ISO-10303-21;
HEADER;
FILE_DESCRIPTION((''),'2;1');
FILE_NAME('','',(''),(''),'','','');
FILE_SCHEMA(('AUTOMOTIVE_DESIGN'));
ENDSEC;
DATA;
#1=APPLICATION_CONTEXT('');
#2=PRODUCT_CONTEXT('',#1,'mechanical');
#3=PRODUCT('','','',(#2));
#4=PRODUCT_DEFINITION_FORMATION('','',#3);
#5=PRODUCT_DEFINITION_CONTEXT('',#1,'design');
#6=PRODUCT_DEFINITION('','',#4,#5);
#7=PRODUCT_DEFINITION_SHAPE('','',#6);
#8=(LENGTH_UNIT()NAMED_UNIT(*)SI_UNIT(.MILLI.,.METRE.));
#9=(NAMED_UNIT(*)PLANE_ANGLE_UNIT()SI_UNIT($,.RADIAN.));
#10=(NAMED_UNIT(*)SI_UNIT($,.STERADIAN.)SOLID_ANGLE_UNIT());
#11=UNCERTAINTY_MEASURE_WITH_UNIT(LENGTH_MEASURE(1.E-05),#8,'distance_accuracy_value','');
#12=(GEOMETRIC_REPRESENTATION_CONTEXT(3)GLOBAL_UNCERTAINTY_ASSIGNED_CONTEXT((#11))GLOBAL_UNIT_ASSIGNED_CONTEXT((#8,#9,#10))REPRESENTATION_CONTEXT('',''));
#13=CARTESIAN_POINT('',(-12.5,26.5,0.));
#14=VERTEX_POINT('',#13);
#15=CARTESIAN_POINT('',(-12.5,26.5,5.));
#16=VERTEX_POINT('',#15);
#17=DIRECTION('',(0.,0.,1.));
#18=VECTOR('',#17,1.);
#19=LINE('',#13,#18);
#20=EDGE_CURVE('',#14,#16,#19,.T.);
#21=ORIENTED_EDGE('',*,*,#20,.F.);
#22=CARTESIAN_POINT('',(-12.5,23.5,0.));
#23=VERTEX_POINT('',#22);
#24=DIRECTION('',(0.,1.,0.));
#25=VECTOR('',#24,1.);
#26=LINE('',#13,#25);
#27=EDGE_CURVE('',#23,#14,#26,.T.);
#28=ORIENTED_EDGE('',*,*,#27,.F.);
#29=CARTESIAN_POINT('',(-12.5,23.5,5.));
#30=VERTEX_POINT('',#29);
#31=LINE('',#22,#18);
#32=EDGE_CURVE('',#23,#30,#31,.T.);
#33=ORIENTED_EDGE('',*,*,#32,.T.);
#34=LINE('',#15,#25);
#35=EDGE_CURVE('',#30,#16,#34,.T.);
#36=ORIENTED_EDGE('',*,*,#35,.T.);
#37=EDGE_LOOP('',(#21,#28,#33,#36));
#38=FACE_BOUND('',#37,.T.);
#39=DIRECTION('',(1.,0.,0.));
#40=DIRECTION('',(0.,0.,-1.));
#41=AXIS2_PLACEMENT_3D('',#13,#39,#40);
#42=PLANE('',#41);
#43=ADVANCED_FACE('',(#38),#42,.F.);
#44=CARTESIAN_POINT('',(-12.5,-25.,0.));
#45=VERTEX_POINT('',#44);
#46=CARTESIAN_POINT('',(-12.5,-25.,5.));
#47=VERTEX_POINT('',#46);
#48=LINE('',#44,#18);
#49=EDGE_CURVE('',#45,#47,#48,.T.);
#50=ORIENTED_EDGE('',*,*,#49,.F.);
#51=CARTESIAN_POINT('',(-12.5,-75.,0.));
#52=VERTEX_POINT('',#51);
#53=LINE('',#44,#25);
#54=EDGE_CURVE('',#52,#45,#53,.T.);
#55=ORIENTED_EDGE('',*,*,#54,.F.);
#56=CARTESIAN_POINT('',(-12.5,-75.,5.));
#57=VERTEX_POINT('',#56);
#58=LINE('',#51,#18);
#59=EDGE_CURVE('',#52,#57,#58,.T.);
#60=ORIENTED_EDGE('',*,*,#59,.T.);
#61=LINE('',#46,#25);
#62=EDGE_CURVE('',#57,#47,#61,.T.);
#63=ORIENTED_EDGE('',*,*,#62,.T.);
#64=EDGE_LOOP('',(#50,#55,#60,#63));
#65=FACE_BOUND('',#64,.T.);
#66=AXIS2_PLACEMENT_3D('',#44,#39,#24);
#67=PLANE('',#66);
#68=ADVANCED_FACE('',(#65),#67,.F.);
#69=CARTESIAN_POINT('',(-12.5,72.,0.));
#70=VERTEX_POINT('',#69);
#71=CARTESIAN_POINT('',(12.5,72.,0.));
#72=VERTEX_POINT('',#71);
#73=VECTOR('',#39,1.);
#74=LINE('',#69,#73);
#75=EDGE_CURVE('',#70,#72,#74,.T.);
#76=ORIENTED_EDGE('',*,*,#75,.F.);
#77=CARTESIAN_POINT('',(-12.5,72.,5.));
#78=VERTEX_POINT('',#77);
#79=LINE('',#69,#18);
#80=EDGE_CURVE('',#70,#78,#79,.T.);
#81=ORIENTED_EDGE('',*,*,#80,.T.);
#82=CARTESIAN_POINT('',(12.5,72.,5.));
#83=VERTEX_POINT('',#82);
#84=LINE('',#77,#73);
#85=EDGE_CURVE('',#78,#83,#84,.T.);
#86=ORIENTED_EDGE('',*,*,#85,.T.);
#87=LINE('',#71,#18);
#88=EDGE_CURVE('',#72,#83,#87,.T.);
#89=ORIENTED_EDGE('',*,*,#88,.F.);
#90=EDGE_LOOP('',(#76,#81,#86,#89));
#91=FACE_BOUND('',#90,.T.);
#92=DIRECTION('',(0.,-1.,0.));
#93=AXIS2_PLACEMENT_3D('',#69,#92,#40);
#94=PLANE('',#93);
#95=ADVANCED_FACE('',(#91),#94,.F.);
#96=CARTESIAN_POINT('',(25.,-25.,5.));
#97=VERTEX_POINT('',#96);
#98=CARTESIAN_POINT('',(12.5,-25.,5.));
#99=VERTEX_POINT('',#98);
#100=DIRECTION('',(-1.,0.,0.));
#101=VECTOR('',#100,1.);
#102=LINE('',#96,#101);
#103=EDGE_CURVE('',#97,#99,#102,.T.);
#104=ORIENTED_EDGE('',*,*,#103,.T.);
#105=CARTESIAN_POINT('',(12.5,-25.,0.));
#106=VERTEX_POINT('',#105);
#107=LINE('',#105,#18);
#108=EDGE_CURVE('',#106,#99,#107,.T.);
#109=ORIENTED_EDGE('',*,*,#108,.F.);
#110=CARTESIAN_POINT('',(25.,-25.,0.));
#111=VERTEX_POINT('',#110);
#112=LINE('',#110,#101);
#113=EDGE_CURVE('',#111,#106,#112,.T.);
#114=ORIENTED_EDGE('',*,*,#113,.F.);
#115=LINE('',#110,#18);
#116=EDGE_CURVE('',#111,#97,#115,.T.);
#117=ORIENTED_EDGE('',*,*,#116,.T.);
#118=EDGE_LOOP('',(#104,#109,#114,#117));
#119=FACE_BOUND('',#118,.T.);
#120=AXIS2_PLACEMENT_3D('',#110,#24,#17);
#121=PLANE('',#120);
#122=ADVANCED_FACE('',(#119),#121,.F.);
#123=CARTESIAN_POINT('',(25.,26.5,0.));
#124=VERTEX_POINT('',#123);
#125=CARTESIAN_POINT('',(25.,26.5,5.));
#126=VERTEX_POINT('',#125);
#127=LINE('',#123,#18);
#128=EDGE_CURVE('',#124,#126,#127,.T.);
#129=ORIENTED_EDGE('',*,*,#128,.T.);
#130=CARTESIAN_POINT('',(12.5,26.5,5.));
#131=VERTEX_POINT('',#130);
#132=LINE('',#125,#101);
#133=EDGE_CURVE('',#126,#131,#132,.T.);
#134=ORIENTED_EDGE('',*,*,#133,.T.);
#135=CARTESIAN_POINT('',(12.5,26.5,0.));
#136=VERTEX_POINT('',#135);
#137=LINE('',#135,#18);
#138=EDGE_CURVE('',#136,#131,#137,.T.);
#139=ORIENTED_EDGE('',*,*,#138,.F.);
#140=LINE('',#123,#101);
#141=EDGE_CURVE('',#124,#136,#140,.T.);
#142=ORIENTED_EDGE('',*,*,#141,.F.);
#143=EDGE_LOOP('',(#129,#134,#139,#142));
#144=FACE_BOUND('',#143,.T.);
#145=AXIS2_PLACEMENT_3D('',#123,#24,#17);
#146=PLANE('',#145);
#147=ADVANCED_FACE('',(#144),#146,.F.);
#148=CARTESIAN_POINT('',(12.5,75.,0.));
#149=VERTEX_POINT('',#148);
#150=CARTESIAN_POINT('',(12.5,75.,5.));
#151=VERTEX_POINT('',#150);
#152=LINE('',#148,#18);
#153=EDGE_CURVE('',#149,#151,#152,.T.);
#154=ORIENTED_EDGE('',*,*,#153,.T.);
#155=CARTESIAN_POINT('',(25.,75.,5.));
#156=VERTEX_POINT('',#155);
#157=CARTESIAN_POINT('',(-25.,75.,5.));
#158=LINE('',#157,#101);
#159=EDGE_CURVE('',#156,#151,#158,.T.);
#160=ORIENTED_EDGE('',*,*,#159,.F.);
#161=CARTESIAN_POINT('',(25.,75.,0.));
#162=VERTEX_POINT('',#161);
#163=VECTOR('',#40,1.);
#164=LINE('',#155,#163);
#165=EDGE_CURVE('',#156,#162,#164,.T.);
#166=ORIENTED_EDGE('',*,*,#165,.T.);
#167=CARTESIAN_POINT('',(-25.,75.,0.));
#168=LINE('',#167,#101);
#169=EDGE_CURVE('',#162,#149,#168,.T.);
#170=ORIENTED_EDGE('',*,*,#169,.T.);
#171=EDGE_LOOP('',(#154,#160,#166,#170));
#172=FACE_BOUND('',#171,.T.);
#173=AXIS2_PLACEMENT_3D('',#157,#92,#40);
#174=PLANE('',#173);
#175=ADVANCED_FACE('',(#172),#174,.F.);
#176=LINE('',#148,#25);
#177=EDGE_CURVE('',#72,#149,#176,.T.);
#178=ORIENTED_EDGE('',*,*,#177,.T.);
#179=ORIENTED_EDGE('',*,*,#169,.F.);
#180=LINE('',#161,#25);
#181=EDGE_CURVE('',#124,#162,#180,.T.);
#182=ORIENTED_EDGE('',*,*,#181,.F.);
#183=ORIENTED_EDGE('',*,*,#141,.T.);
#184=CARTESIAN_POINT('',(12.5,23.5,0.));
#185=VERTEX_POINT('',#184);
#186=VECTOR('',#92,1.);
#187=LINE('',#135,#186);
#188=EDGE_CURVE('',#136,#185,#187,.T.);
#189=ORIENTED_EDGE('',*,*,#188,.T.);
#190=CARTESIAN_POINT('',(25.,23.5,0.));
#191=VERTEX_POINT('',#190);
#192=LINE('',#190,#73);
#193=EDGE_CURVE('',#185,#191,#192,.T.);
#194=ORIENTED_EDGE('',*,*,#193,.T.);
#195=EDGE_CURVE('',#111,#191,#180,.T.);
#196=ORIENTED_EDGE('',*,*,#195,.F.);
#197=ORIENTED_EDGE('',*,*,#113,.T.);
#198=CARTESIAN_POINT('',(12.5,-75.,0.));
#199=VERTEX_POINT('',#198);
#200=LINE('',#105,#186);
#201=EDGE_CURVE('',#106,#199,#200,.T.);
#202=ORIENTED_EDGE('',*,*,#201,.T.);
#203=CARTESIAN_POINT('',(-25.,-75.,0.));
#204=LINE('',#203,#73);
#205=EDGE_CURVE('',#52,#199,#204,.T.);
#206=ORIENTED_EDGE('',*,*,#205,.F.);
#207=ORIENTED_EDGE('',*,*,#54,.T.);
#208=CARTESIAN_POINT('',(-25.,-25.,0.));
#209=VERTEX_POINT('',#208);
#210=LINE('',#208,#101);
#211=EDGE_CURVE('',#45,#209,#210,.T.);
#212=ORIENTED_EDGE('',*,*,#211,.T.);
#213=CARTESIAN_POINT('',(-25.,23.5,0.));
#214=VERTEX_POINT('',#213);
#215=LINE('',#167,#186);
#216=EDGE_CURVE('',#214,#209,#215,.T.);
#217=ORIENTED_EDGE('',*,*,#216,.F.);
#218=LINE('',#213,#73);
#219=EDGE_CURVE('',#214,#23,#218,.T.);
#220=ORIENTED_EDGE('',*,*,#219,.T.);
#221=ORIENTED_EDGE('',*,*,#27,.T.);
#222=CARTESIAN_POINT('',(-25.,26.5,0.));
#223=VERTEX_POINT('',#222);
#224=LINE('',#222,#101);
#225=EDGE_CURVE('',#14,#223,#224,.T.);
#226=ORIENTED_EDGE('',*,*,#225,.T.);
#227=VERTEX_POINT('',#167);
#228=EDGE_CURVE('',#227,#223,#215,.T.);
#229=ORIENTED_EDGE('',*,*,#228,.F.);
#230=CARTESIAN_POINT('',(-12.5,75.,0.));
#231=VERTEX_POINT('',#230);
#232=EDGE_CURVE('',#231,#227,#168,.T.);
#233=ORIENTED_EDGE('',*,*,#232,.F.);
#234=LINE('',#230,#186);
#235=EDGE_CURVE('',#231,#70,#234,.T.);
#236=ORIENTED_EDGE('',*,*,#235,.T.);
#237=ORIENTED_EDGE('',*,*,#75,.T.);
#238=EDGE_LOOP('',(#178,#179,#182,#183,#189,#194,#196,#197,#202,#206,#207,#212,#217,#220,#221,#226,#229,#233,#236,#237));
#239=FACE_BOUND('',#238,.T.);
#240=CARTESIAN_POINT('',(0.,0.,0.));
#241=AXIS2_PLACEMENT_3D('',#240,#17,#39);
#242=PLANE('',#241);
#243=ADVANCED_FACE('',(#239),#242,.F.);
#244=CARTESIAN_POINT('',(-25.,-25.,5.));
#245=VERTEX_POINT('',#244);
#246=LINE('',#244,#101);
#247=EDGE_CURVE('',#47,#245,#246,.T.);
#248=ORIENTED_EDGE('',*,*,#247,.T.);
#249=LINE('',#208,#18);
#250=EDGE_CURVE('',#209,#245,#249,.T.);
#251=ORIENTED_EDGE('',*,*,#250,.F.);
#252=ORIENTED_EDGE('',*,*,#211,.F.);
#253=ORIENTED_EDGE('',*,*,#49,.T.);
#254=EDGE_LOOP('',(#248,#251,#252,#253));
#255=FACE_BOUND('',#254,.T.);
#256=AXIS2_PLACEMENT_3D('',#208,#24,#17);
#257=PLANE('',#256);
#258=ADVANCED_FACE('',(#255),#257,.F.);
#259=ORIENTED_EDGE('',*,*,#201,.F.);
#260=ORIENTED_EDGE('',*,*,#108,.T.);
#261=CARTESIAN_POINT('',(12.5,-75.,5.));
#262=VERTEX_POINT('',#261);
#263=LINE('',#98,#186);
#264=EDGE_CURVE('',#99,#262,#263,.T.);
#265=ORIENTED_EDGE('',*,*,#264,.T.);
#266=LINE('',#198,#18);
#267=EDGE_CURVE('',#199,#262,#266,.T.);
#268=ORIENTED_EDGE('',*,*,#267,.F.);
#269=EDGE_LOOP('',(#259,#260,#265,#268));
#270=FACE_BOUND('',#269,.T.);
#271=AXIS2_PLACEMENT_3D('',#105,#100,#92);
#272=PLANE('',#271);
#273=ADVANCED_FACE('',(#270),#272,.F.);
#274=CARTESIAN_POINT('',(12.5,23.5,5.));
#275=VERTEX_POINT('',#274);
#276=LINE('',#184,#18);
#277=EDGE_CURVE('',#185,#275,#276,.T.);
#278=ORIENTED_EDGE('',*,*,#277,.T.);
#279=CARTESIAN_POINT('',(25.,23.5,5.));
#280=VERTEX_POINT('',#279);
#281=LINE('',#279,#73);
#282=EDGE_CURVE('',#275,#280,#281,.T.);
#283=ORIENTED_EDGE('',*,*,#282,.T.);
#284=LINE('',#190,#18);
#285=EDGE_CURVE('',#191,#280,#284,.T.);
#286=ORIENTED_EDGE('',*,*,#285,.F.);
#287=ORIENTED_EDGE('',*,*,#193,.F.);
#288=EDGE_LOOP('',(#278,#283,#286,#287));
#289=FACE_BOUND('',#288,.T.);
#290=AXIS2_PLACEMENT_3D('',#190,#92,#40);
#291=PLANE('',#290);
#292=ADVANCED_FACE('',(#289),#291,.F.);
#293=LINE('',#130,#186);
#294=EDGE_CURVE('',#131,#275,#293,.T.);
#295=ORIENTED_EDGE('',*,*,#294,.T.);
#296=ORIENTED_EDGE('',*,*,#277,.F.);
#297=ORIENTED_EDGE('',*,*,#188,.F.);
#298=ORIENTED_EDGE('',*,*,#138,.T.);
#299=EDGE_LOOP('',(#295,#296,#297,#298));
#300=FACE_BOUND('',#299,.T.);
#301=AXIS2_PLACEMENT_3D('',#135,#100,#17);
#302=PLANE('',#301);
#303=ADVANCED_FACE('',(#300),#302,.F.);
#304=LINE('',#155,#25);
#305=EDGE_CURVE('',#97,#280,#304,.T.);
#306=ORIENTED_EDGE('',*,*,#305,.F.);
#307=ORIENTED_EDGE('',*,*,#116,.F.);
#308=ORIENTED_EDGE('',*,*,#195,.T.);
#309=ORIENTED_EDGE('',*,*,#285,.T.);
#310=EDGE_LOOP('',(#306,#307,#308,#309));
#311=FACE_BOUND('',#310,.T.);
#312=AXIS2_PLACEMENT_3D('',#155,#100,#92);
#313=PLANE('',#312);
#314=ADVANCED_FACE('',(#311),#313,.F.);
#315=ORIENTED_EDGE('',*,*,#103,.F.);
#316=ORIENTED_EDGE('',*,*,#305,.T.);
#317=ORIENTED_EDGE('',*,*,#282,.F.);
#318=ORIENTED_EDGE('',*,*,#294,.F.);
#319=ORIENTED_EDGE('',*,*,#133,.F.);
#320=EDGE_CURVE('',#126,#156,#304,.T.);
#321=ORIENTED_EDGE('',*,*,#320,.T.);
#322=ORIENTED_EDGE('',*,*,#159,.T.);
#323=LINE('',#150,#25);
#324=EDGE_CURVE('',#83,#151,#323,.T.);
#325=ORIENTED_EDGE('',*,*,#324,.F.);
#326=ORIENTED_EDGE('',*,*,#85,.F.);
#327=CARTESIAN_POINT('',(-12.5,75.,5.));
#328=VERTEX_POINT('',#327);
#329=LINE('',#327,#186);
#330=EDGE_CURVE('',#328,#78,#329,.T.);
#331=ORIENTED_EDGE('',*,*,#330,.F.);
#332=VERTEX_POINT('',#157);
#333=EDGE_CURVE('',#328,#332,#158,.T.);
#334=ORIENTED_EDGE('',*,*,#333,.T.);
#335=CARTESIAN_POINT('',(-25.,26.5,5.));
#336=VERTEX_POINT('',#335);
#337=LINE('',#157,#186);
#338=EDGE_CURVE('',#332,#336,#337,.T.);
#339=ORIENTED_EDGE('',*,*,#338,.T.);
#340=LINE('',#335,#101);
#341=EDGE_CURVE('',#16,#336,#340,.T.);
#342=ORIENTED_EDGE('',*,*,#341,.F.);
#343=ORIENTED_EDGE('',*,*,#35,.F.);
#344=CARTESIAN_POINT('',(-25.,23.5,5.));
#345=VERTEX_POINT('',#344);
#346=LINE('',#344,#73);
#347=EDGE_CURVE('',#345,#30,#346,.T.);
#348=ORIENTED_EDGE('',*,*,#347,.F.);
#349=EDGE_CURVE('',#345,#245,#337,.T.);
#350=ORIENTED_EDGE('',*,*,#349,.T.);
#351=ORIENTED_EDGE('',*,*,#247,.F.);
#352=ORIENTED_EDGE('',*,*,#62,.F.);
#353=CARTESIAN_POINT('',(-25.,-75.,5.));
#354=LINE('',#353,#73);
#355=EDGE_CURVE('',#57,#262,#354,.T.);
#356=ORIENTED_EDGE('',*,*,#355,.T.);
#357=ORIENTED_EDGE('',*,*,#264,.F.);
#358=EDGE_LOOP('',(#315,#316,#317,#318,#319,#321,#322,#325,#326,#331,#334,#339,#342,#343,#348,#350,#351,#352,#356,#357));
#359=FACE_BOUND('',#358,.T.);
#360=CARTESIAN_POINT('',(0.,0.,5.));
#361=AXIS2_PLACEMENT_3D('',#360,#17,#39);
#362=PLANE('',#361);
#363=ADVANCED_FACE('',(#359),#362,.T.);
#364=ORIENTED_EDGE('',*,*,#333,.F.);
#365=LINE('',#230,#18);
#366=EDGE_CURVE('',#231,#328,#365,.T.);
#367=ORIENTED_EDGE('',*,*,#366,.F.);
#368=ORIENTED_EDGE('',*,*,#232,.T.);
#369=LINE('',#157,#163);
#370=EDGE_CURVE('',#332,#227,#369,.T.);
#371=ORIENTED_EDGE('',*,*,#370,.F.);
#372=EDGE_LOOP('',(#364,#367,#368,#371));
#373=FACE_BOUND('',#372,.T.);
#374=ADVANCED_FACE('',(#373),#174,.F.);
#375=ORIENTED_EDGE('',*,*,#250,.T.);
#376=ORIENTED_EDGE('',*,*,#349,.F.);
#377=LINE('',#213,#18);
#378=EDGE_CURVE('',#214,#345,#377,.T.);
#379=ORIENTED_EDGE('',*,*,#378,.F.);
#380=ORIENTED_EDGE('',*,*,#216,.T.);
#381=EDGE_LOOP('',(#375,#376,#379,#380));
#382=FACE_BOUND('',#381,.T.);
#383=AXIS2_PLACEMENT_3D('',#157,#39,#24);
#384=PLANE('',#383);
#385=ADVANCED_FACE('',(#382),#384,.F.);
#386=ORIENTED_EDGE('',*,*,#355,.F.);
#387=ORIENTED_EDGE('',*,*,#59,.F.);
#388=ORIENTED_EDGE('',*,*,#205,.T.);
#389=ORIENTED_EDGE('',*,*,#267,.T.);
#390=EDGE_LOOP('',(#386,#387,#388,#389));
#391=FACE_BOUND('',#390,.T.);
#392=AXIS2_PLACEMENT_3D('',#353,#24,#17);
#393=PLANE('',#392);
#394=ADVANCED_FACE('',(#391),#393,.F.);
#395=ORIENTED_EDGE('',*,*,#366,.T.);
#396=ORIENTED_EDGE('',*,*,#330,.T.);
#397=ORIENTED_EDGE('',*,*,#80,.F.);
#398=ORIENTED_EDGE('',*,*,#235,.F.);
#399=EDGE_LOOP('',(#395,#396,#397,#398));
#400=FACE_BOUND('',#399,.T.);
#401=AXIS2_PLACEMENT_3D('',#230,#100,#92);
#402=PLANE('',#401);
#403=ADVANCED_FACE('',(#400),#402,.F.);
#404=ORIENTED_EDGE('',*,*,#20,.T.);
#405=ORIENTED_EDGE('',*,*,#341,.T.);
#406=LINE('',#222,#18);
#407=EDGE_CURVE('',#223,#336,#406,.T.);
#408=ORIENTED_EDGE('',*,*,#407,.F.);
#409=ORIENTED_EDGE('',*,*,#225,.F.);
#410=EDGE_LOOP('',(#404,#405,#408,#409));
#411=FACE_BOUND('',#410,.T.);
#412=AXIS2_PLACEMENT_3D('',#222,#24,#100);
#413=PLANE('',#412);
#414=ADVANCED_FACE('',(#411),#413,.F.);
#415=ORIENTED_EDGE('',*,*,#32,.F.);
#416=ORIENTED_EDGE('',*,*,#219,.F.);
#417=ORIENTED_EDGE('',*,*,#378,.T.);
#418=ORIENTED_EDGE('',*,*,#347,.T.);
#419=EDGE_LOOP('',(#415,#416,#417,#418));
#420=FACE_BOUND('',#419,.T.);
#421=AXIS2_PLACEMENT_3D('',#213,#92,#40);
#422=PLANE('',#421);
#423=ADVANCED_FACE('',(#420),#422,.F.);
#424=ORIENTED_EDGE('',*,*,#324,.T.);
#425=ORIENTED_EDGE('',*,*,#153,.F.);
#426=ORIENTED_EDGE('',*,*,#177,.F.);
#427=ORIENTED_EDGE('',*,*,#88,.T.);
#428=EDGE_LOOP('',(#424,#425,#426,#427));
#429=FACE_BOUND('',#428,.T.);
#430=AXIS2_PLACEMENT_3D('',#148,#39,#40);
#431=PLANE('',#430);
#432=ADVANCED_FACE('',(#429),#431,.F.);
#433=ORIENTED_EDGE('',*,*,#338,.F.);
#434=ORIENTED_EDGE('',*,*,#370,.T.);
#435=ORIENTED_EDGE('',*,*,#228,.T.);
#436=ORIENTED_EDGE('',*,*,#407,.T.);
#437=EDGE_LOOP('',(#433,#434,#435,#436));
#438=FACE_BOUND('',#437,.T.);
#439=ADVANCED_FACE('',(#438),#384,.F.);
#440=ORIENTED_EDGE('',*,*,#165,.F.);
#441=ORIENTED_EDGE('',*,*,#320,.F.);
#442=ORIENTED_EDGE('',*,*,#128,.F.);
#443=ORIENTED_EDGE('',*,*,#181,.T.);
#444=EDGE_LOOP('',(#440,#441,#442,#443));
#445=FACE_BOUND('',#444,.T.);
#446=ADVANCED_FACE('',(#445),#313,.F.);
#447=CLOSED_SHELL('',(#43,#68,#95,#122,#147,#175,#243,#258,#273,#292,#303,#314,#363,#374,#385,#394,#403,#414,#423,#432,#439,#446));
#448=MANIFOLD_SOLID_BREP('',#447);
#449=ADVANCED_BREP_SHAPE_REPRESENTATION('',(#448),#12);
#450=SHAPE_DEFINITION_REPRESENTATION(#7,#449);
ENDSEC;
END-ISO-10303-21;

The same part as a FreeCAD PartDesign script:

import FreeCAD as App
import Part
import Sketcher


def add_polygon(sketch, points):
    """Adds a closed chain of lines whose ends are joined by coincident constraints."""
    first, n = sketch.GeometryCount, len(points)
    for a, b in zip(points, points[1:] + points[:1]):
        sketch.addGeometry(Part.LineSegment(App.Vector(*a, 0), App.Vector(*b, 0)), False)
    for i in range(n):
        sketch.addConstraint(Sketcher.Constraint("Coincident", first + i, 2, first + (i + 1) % n, 1))

doc = App.newDocument("Part")
params = doc.addObject("Spreadsheet::Sheet", "Params")
for row, (alias, value) in enumerate([
    ("sketch1_width", "50 mm"),
    ("sketch1_height", "150 mm"),
    ("pad1_length", "5 mm"),
    ("sketch2_width", "25 mm"),
    ("sketch2_height", "3 mm"),
    ("sketch2_height2", "50 mm"),
    ("sketch2_width2", "12.5 mm"),
    ("pocket1_length", "5 mm"),
], start=1):
    params.set(f"A{row}", alias)
    params.set(f"B{row}", "=" + value)
    params.setAlias(f"B{row}", alias)

body = doc.addObject("PartDesign::Body", "Body")

sketch1 = doc.addObject("Sketcher::SketchObject", "Sketch")
body.addObject(sketch1)
sketch1.AttachmentSupport = (doc.XY_Plane, [""])
sketch1.MapMode = "FlatFace"
add_polygon(sketch1, [(-25, 75), (-25, -75), (25, -75), (25, 75)])
sketch1.addConstraint([
    Sketcher.Constraint("Vertical", 0),
    Sketcher.Constraint("Horizontal", 1),
    Sketcher.Constraint("Vertical", 2),
    Sketcher.Constraint("Horizontal", 3),
    Sketcher.Constraint("Symmetric", 0, 2, 2, 2, -1, 1),
    Sketcher.Constraint("DistanceX", 1, 1, 1, 2, 50.0),
    Sketcher.Constraint("DistanceY", 0, 2, 0, 1, 150.0),
])
sketch1.setExpression("Constraints[9]", "Params.sketch1_width")
sketch1.setExpression("Constraints[10]", "Params.sketch1_height")
pad1 = doc.addObject("PartDesign::Pad", "Pad")
body.addObject(pad1)
pad1.Profile = sketch1
pad1.setExpression("Length", "Params.pad1_length")

sketch2 = doc.addObject("Sketcher::SketchObject", "Sketch001")
body.addObject(sketch2)
sketch2.AttachmentSupport = (doc.XY_Plane, [""])
sketch2.MapMode = "FlatFace"
sketch2.AttachmentOffset = App.Placement(App.Vector(0, 0, 5), App.Rotation())
add_polygon(sketch2, [(-12.5, 75), (-12.5, 72), (12.5, 72), (12.5, 75)])
add_polygon(sketch2, [(-25, 26.5), (-25, 23.5), (-12.5, 23.5), (-12.5, 26.5)])
add_polygon(sketch2, [(12.5, 26.5), (12.5, 23.5), (25, 23.5), (25, 26.5)])
add_polygon(sketch2, [(12.5, -25), (12.5, -75), (25, -75), (25, -25)])
add_polygon(sketch2, [(-25, -25), (-25, -75), (-12.5, -75), (-12.5, -25)])
sketch2.addConstraint([
    Sketcher.Constraint("Vertical", 0),
    Sketcher.Constraint("Horizontal", 1),
    Sketcher.Constraint("Vertical", 2),
    Sketcher.Constraint("Horizontal", 3),
    Sketcher.Constraint("Vertical", 4),
    Sketcher.Constraint("Horizontal", 5),
    Sketcher.Constraint("Vertical", 6),
    Sketcher.Constraint("Horizontal", 7),
    Sketcher.Constraint("Vertical", 8),
    Sketcher.Constraint("Horizontal", 9),
    Sketcher.Constraint("Vertical", 10),
    Sketcher.Constraint("Horizontal", 11),
    Sketcher.Constraint("Vertical", 12),
    Sketcher.Constraint("Horizontal", 13),
    Sketcher.Constraint("Vertical", 14),
    Sketcher.Constraint("Horizontal", 15),
    Sketcher.Constraint("Vertical", 16),
    Sketcher.Constraint("Horizontal", 17),
    Sketcher.Constraint("Vertical", 18),
    Sketcher.Constraint("Horizontal", 19),
    Sketcher.Constraint("Symmetric", 3, 2, 12, 2, -1, 1),
    Sketcher.Constraint("Symmetric", 2, 2, 17, 2, -1, 1),
    Sketcher.Constraint("Symmetric", 5, 2, 8, 2, -2),
    Sketcher.Constraint("Symmetric", 7, 2, 10, 2, -2),
    Sketcher.Constraint("Symmetric", 15, 2, 18, 2, -2),
    Sketcher.Constraint("Vertical", 3, 2, 5, 2),
    Sketcher.Constraint("Vertical", 10, 2, 13, 2),
    Sketcher.Constraint("Vertical", 7, 2, 16, 2),
    Sketcher.Constraint("Equal", 2, 4),
    Sketcher.Constraint("DistanceX", 1, 1, 1, 2, 25.0),
    Sketcher.Constraint("DistanceY", 0, 2, 0, 1, 3.0),
    Sketcher.Constraint("DistanceY", 12, 2, 12, 1, 50.0),
    Sketcher.Constraint("DistanceX", 5, 1, 5, 2, 12.5),
    Sketcher.Constraint("DistanceY", -1, 1, 0, 2, 72.0),
    Sketcher.Constraint("DistanceY", -1, 1, 4, 2, 23.5),
])
sketch2.setExpression("Constraints[49]", "Params.sketch2_width")
sketch2.setExpression("Constraints[50]", "Params.sketch2_height")
sketch2.setExpression("Constraints[51]", "Params.sketch2_height2")
sketch2.setExpression("Constraints[52]", "Params.sketch2_width2")
pocket1 = doc.addObject("PartDesign::Pocket", "Pocket")
body.addObject(pocket1)
pocket1.Profile = sketch2
pocket1.setExpression("Length", "Params.pocket1_length")

doc.recompute()
